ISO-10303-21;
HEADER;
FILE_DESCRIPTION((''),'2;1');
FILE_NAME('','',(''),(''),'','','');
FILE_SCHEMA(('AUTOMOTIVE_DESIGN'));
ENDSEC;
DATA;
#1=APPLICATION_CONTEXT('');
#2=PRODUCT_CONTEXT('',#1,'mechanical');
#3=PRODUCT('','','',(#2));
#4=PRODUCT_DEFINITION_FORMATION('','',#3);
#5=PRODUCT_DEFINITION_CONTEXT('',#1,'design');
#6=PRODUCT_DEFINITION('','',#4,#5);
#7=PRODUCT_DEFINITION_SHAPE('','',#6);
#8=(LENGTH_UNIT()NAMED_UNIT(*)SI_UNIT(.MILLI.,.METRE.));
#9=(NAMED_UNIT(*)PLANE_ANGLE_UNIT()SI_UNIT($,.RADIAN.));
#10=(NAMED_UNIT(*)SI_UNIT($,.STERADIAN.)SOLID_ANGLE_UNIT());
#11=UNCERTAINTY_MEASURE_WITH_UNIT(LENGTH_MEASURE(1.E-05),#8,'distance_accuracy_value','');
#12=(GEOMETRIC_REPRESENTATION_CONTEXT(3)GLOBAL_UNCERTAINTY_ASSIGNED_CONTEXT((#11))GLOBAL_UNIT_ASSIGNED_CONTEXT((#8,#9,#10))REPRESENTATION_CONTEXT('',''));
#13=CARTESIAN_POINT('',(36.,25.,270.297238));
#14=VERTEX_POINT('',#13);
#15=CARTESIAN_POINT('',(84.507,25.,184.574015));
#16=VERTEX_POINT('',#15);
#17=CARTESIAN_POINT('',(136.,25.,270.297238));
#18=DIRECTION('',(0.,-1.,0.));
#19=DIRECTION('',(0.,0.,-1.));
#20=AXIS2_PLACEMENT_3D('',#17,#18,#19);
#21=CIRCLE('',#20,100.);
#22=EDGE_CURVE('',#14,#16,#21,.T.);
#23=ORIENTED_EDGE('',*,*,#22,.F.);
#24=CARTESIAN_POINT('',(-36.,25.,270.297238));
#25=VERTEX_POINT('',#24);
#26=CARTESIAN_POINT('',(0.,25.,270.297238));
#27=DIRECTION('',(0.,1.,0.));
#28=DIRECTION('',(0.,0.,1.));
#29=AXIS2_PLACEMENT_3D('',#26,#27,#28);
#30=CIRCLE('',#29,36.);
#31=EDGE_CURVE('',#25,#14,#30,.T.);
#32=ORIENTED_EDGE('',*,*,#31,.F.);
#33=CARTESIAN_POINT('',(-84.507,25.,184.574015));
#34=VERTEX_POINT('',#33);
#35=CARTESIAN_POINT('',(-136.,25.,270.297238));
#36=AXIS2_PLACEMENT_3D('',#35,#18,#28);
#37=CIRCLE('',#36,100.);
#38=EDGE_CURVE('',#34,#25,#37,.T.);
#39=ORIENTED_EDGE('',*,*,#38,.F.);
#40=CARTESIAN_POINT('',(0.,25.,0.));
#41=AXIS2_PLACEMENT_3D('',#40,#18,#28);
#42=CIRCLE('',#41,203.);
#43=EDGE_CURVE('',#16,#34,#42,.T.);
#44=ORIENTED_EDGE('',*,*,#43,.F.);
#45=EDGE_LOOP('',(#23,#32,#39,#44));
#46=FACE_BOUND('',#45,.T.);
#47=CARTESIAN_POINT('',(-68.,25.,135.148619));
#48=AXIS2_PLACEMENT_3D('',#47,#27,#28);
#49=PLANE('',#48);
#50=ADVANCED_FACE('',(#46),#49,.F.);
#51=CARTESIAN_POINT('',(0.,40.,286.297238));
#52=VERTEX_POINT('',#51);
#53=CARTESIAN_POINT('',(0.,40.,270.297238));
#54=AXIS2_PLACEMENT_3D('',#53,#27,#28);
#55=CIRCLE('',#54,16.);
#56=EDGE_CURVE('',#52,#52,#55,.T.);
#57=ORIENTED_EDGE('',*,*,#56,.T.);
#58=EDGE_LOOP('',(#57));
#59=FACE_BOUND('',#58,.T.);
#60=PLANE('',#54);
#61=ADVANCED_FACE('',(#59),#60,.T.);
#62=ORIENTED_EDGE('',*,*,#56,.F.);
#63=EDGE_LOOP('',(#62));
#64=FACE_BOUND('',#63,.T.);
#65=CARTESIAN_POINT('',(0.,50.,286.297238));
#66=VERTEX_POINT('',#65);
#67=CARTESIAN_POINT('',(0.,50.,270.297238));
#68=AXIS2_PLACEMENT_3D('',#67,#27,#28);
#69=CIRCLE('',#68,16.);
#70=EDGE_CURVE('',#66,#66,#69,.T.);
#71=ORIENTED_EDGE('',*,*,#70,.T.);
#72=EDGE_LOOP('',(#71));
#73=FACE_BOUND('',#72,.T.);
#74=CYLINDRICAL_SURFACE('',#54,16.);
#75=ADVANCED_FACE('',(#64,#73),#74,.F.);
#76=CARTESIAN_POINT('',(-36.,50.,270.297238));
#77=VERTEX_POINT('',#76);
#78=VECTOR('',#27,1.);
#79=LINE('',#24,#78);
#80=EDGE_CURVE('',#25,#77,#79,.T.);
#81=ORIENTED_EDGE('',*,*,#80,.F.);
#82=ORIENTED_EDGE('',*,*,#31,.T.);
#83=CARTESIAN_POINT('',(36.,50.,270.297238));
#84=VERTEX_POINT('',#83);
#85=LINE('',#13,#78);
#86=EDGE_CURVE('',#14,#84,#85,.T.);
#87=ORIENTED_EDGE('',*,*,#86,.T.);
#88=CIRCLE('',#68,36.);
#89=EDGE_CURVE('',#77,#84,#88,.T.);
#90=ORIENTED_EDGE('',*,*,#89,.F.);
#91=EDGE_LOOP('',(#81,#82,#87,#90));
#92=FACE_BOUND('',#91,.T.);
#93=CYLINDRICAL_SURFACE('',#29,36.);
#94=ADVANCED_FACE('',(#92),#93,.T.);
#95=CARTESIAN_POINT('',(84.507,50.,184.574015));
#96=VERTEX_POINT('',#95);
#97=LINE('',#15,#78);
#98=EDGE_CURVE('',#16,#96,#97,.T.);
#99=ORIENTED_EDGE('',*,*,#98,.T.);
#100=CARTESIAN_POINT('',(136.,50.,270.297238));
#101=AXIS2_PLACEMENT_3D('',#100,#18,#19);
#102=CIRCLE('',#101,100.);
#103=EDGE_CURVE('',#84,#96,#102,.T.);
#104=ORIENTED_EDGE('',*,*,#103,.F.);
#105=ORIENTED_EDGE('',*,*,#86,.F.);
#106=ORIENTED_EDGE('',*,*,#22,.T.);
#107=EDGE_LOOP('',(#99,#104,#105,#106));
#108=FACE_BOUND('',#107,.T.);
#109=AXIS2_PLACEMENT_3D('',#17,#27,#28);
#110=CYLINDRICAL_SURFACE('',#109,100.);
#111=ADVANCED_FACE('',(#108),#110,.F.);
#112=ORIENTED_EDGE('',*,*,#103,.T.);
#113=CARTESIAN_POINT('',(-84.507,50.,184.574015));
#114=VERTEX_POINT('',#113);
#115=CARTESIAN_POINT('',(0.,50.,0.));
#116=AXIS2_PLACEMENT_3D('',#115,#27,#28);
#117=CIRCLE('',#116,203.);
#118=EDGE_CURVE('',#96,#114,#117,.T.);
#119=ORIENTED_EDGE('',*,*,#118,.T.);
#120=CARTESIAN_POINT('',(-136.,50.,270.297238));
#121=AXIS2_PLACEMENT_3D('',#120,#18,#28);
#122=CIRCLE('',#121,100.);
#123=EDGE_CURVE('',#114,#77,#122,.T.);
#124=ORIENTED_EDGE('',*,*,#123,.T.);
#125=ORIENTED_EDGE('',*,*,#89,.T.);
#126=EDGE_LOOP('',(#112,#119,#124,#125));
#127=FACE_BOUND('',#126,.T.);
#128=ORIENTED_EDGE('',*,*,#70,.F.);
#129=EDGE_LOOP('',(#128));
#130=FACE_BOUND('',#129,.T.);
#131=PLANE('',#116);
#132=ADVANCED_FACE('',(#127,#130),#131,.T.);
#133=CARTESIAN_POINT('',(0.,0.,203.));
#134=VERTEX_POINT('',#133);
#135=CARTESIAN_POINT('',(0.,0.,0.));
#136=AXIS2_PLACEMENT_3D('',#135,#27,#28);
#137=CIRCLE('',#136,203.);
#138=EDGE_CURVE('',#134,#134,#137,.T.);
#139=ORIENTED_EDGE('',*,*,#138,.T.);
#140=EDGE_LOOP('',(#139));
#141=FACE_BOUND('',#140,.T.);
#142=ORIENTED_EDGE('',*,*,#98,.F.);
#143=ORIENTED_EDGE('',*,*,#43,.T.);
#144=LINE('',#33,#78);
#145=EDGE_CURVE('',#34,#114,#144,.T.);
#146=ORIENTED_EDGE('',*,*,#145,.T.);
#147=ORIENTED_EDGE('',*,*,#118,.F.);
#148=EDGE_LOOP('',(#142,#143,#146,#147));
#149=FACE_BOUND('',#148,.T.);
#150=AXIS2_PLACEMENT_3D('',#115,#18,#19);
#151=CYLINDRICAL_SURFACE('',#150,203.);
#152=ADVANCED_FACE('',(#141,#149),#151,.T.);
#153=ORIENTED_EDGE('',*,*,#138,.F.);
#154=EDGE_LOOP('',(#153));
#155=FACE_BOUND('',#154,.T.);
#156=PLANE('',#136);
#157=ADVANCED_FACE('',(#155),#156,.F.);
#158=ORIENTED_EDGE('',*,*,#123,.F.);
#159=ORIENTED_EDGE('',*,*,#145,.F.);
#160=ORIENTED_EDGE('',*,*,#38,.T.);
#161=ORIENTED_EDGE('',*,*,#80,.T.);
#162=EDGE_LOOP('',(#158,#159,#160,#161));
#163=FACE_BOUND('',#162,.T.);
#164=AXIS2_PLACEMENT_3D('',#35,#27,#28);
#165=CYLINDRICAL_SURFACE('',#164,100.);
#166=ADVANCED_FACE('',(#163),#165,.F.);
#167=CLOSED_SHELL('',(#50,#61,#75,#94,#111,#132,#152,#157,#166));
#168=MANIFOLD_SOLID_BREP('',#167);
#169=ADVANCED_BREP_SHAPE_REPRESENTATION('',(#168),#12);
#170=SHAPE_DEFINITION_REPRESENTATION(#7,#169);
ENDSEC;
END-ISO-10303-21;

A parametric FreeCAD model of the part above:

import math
import FreeCAD as App
import Part
import Sketcher
from FreeCAD import Vector

doc = App.newDocument("Part")
body = doc.addObject("PartDesign::Body", "Body")

sketch1 = body.newObject("Sketcher::SketchObject", "Sketch")
sketch1.AttachmentSupport = (doc.getObject("XZ_Plane"), [""])
sketch1.MapMode = "FlatFace"
sketch1.addGeometry(Part.Circle(Vector(0, 0, 0), Vector(0, 0, 1), 203), False)
sketch1.addConstraint([
    Sketcher.Constraint("Coincident", 0, 3, -1, 1),
    Sketcher.Constraint("Diameter", 0, 406.0),
])
pad1 = body.newObject("PartDesign::Pad", "Pad")
pad1.Profile = sketch1
pad1.Length = 50
pad1.Reversed = True

sketch2 = body.newObject("Sketcher::SketchObject", "Sketch001")
sketch2.AttachmentSupport = (doc.getObject("XZ_Plane"), [""])
sketch2.MapMode = "FlatFace"
sketch2.AttachmentOffset = App.Placement(Vector(0, 0, -25), App.Rotation())
sketch2.addGeometry([
    Part.ArcOfCircle(Part.Circle(Vector(0, 270, 0), Vector(0, 0, 1), 36), math.radians(0), math.radians(180)),
    Part.ArcOfCircle(Part.Circle(Vector(136, 270, 0), Vector(0, 0, 1), 100), math.radians(-180), math.radians(-121)),
    Part.ArcOfCircle(Part.Circle(Vector(0, 0, 0), Vector(0, 0, 1), 203), math.radians(65), math.radians(115)),
    Part.ArcOfCircle(Part.Circle(Vector(-136, 270, 0), Vector(0, 0, 1), 100), math.radians(-59), math.radians(0)),
], False)
sketch2.addConstraint([
    Sketcher.Constraint("Tangent", 0, 1, 1, 1),
    Sketcher.Constraint("Coincident", 1, 2, 2, 1),
    Sketcher.Constraint("Coincident", 2, 2, 3, 1),
    Sketcher.Constraint("Tangent", 3, 2, 0, 2),
    Sketcher.Constraint("Coincident", 2, 3, -1, 1),
    Sketcher.Constraint("Equal", 1, 3),
    Sketcher.Constraint("Symmetric", 1, 3, 3, 3, -2),
    Sketcher.Constraint("Horizontal", 0, 3, 1, 3),
    Sketcher.Constraint("Radius", 0, 36.0),
    Sketcher.Constraint("Radius", 1, 100.0),
    Sketcher.Constraint("Radius", 2, 203.0),
    Sketcher.Constraint("DistanceX", -1, 1, 1, 2, 84.507),
])
pad2 = body.newObject("PartDesign::Pad", "Pad001")
pad2.Profile = sketch2
pad2.Length = 25
pad2.Reversed = True

sketch3 = body.newObject("Sketcher::SketchObject", "Sketch002")
sketch3.AttachmentSupport = (doc.getObject("XZ_Plane"), [""])
sketch3.MapMode = "FlatFace"
sketch3.AttachmentOffset = App.Placement(Vector(0, 0, -50), App.Rotation())
sketch3.addGeometry(Part.Circle(Vector(0, 270, 0), Vector(0, 0, 1), 16), False)
sketch3.addConstraint([
    Sketcher.Constraint("PointOnObject", 0, 3, -2),
    Sketcher.Constraint("Diameter", 0, 32.0),
    Sketcher.Constraint("DistanceY", -1, 1, 0, 3, 270.297238),
])
pocket1 = body.newObject("PartDesign::Pocket", "Pocket")
pocket1.Profile = sketch3
pocket1.Length = 10
pocket1.Reversed = True

doc.recompute()
